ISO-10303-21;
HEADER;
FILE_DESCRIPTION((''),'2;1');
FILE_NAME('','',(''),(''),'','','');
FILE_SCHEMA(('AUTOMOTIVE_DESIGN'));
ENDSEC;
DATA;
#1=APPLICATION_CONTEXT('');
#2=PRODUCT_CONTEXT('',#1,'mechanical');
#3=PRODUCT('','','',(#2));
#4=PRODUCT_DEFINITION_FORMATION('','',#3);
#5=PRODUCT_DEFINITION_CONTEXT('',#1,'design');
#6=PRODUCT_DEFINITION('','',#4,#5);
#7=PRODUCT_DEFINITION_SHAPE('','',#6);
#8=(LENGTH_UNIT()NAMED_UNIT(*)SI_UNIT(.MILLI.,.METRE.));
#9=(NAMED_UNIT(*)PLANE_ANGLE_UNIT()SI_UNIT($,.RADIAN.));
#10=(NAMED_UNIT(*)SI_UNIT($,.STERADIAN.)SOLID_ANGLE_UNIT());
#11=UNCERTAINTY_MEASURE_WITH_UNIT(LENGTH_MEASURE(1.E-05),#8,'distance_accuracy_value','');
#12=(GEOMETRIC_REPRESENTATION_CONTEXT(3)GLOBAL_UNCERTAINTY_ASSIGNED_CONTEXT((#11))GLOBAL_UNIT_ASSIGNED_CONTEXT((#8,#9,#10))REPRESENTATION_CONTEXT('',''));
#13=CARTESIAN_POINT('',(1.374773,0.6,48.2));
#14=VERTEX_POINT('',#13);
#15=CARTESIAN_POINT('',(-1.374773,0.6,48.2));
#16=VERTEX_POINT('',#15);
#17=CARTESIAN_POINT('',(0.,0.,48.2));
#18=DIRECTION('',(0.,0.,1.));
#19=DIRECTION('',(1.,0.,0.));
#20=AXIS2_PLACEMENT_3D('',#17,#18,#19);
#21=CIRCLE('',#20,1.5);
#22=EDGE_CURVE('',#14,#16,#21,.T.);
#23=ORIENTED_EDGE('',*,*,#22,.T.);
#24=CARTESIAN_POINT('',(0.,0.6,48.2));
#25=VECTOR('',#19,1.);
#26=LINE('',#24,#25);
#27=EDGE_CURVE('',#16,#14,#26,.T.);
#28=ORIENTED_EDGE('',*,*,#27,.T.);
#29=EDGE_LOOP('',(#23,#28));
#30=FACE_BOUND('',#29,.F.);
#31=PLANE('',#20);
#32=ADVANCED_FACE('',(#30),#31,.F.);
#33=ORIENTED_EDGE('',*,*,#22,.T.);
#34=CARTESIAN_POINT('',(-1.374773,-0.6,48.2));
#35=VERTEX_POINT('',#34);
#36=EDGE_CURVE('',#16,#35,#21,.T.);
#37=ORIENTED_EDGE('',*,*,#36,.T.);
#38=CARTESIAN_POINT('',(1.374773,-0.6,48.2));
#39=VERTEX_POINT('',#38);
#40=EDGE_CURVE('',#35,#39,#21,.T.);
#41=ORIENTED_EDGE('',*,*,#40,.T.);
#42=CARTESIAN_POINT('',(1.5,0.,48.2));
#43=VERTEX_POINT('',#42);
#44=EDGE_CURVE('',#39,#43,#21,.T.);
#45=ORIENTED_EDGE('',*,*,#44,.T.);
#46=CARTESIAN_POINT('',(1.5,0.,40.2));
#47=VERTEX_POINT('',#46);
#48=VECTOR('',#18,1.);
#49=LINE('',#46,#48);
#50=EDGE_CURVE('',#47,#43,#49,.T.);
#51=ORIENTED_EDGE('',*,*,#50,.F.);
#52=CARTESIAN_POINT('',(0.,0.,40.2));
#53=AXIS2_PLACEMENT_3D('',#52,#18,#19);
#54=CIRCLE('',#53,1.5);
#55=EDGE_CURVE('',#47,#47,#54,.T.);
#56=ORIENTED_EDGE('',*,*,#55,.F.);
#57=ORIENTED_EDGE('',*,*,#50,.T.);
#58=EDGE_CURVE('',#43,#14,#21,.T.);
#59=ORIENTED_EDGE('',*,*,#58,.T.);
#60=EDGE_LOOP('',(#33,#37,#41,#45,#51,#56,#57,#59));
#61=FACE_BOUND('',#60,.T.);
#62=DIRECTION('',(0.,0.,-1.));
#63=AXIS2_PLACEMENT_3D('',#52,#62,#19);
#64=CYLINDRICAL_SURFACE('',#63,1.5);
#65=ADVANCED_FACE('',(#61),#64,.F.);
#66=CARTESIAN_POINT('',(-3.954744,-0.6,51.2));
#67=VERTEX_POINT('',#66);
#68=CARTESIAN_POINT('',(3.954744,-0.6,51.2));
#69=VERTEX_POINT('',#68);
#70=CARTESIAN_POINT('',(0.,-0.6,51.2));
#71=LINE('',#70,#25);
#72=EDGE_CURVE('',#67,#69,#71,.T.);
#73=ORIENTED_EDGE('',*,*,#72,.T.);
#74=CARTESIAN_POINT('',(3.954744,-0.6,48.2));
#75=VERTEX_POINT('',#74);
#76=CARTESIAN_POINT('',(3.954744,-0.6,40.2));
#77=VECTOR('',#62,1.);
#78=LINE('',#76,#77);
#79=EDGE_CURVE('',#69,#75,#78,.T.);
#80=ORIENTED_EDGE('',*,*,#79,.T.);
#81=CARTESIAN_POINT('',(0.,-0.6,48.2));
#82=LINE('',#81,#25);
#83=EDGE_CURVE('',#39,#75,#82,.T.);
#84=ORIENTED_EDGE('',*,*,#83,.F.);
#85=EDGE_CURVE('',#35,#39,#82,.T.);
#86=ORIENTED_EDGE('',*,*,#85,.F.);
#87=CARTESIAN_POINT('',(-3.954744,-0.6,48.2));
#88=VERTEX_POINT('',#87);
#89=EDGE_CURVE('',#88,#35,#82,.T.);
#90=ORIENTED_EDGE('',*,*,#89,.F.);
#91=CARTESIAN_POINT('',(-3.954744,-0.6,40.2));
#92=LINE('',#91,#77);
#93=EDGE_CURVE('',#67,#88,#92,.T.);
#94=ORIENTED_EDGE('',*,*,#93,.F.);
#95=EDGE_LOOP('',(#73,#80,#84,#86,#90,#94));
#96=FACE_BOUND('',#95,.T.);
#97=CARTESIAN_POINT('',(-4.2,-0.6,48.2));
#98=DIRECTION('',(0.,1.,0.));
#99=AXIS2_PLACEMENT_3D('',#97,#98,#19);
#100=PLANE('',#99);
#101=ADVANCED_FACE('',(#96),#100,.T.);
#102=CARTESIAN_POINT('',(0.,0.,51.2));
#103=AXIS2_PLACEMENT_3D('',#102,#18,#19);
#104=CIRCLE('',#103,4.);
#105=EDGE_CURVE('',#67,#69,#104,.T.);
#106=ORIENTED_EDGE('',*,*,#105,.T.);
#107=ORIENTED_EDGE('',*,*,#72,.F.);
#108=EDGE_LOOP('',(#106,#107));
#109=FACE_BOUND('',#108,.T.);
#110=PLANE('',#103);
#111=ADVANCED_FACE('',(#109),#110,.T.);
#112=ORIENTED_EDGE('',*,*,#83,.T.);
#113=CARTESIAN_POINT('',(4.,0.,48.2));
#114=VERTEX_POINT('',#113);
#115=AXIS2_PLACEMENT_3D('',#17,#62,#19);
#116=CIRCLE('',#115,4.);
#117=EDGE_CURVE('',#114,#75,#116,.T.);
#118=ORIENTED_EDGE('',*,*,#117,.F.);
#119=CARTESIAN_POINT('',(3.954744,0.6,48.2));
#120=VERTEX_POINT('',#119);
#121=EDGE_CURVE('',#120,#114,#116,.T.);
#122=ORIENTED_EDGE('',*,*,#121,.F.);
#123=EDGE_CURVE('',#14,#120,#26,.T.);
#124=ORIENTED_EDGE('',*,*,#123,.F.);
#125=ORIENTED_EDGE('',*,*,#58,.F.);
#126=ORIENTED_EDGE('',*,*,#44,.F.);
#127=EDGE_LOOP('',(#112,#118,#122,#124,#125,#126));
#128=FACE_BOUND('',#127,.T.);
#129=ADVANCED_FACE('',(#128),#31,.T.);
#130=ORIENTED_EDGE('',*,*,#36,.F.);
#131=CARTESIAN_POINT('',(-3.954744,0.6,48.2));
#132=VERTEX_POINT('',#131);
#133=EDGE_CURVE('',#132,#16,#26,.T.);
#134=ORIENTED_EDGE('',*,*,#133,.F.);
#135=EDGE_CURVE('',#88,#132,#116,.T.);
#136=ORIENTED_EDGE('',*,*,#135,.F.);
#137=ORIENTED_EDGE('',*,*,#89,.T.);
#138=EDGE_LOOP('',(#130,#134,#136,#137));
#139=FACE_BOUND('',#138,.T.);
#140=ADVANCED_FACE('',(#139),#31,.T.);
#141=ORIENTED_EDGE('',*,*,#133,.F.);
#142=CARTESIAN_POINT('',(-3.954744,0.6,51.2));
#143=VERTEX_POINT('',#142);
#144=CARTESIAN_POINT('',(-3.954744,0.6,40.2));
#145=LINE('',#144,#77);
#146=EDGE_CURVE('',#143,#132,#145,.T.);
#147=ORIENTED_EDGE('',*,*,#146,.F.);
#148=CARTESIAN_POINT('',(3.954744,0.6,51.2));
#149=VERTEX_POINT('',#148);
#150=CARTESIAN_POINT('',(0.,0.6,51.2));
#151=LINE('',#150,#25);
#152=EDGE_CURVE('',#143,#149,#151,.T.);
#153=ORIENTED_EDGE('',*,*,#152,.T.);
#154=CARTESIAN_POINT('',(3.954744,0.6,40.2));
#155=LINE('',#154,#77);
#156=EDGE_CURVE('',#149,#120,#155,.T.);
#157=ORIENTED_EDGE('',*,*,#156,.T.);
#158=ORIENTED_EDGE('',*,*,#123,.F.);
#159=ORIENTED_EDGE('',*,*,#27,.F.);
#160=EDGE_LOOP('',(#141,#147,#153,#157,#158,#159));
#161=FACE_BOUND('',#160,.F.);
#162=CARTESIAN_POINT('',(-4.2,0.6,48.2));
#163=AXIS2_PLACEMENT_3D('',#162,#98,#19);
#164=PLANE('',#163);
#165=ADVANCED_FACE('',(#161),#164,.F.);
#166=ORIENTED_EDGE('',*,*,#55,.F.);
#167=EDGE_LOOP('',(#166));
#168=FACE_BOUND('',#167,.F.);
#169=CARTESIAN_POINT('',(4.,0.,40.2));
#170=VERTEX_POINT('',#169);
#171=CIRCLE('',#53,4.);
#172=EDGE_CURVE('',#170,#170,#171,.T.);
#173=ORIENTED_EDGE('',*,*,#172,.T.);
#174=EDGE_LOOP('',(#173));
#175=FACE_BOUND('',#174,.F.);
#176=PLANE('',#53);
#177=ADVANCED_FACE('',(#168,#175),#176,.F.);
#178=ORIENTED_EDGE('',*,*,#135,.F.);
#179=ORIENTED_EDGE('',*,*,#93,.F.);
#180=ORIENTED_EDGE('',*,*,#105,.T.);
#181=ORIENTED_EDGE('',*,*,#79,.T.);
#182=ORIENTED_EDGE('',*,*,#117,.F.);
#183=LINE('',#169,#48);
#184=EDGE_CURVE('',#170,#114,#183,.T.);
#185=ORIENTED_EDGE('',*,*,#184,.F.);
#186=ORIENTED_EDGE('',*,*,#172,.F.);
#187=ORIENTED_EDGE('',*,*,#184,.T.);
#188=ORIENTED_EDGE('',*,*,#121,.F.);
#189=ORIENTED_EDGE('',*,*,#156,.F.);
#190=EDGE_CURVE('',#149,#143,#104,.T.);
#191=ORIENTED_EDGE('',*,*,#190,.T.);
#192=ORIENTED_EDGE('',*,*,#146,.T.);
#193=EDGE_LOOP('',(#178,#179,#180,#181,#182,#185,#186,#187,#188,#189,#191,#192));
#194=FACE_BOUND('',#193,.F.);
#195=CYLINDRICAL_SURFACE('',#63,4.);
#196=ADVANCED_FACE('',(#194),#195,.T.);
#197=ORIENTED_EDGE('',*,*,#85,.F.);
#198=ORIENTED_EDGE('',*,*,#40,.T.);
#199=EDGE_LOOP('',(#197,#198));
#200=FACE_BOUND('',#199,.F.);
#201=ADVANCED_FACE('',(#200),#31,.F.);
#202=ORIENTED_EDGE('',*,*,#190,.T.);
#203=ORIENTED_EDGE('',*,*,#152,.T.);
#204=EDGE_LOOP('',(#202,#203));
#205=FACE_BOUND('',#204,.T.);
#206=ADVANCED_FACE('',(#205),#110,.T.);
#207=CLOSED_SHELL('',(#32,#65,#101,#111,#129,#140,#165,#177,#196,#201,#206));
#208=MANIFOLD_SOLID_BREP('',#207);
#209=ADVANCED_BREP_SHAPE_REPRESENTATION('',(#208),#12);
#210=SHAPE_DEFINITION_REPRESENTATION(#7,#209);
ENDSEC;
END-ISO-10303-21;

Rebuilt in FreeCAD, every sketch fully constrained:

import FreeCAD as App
import Part
import Sketcher
from FreeCAD import Vector
Q = App.Units.Quantity

doc = App.newDocument("Part")
body = doc.addObject("PartDesign::Body", "Body")

# Sketch on XY plane
sketch1 = body.newObject("Sketcher::SketchObject", "Sketch")
sketch1.AttachmentSupport = (doc.getObject("XY_Plane"), [""])
sketch1.MapMode = "FlatFace"
sketch1.AttachmentOffset = App.Placement(Vector(0, 0, 8), App.Rotation())
sketch1.addGeometry([
    Part.LineSegment(Vector(-4.2, 0.6, 0), Vector(-4.2, -0.6, 0)),
    Part.LineSegment(Vector(-4.2, -0.6, 0), Vector(4.2, -0.6, 0)),
    Part.LineSegment(Vector(4.2, -0.6, 0), Vector(4.2, 0.6, 0)),
    Part.LineSegment(Vector(4.2, 0.6, 0), Vector(-4.2, 0.6, 0)),
], False)
sketch1.addConstraint([
    Sketcher.Constraint("Coincident", 0, 2, 1, 1),
    Sketcher.Constraint("Coincident", 1, 2, 2, 1),
    Sketcher.Constraint("Coincident", 2, 2, 3, 1),
    Sketcher.Constraint("Coincident", 3, 2, 0, 1),
    Sketcher.Constraint("Vertical", 0),
    Sketcher.Constraint("Horizontal", 1),
    Sketcher.Constraint("Vertical", 2),
    Sketcher.Constraint("Horizontal", 3),
    Sketcher.Constraint("Symmetric", 0, 2, 2, 2, -1, 1),
    Sketcher.Constraint("DistanceX", 1, 1, 1, 2, Q("8.4 mm")),
    Sketcher.Constraint("DistanceY", 0, 2, 0, 1, Q("1.2 mm")),
])
pad1 = body.newObject("PartDesign::Pad", "Pad")
pad1.Profile = sketch1
pad1.Length = 3
body2 = doc.addObject("PartDesign::Body", "Body001")

# Sketch on XY plane
sketch2 = body2.newObject("Sketcher::SketchObject", "Sketch001")
sketch2.AttachmentSupport = (doc.getObject("XY_Plane001"), [""])
sketch2.MapMode = "FlatFace"
sketch2.addGeometry(Part.Circle(Vector(0, 0, 0), Vector(0, 0, 1), 1.5), False)
sketch2.addConstraint([
    Sketcher.Constraint("Coincident", 0, 3, -1, 1),
    Sketcher.Constraint("Diameter", 0, Q("3 mm")),
])
pad2 = body2.newObject("PartDesign::Pad", "Pad001")
pad2.Profile = sketch2
pad2.Length = 8
body3 = doc.addObject("PartDesign::Body", "Body002")

# Sketch on XY plane
sketch3 = body3.newObject("Sketcher::SketchObject", "Sketch002")
sketch3.AttachmentSupport = (doc.getObject("XY_Plane002"), [""])
sketch3.MapMode = "FlatFace"
sketch3.addGeometry(Part.Circle(Vector(0, 0, 0), Vector(0, 0, 1), 4), False)
sketch3.addConstraint([
    Sketcher.Constraint("Coincident", 0, 3, -1, 1),
    Sketcher.Constraint("Diameter", 0, Q("8 mm")),
])
pad3 = body3.newObject("PartDesign::Pad", "Pad002")
pad3.Profile = sketch3
pad3.Length = 11
doc.recompute()

boolean = body3.newObject("PartDesign::Boolean", "Boolean")
boolean.Type = "Cut"
boolean.addObjects([body2])
doc.recompute()

boolean2 = body3.newObject("PartDesign::Boolean", "Boolean001")
boolean2.Type = "Cut"
boolean2.addObjects([body])
body4 = doc.addObject("PartDesign::Body", "Body003")
doc.recompute()

body3.Placement = App.Placement(Vector(0, 0, 40.2), App.Rotation(Vector(0, 0, 1), 0))
boolean3 = body4.newObject("PartDesign::Boolean", "Boolean002")
boolean3.Type = "Fuse"
boolean3.addObjects([body3])

doc.recompute()
